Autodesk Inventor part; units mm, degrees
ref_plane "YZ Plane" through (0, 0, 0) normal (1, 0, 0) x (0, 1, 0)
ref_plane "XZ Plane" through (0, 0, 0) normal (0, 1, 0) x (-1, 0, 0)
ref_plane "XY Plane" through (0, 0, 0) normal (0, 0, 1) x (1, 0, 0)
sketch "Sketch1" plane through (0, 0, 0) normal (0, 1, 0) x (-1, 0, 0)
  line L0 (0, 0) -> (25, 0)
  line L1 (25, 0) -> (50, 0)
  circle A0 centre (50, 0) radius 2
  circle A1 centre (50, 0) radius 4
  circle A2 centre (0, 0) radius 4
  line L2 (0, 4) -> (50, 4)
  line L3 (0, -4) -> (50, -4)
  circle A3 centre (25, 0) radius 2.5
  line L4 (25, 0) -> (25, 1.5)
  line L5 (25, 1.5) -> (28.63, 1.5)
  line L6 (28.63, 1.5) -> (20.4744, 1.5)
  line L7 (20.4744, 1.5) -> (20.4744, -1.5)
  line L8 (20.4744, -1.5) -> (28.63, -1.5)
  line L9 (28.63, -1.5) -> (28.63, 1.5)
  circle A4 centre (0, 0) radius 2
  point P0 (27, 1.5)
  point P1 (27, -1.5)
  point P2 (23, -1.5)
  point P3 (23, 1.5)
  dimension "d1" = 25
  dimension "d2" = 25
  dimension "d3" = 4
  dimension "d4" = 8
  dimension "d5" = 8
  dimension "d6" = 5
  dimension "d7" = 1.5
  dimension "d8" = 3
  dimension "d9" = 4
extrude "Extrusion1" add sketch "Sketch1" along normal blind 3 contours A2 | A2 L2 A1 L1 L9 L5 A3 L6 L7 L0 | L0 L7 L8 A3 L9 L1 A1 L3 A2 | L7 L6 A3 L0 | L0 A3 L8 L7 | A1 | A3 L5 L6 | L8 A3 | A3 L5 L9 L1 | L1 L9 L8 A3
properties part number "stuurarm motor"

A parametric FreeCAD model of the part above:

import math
import FreeCAD as App
import Part
import Sketcher
from FreeCAD import Vector
Q = App.Units.Quantity

doc = App.newDocument("Part")
body = doc.addObject("PartDesign::Body", "Body")

# Sketch on XZ plane
sketch1 = doc.addObject("Sketcher::SketchObject", "Sketch")
body.addObject(sketch1)
sketch1.AttachmentSupport = (doc.XZ_Plane, [""])
sketch1.MapMode = "FlatFace"
sketch1.addGeometry([
    Part.ArcOfCircle(Part.Circle(Vector(0, 0, 0), Vector(0, 0, 1), 4), math.radians(-90), math.radians(90)),  # 0
    Part.LineSegment(Vector(0, -4, 0), Vector(-50, -4, 0)),  # 1
    Part.ArcOfCircle(Part.Circle(Vector(-50, 0, 0), Vector(0, 0, 1), 4), math.radians(90), math.radians(270)),  # 2
    Part.LineSegment(Vector(-50, 4, 0), Vector(0, 4, 0)),  # 3
    Part.Circle(Vector(0, 0, 0), Vector(0, 0, 1), 2),  # 4
    Part.ArcOfCircle(Part.Circle(Vector(-25, 0, 0), Vector(0, 0, 1), 2.5), math.radians(-37), math.radians(37)),  # 5
    Part.LineSegment(Vector(-23, 1.5, 0), Vector(-27, 1.5, 0)),  # 6
    Part.ArcOfCircle(Part.Circle(Vector(-25, 0, 0), Vector(0, 0, 1), 2.5), math.radians(143), math.radians(217)),  # 7
    Part.LineSegment(Vector(-27, -1.5, 0), Vector(-23, -1.5, 0)),  # 8
    Part.Circle(Vector(-50, 0, 0), Vector(0, 0, 1), 2),  # 9
], False)
sketch1.addConstraint([
    Sketcher.Constraint("Tangent", 0, 1, 1, 1),
    Sketcher.Constraint("Tangent", 1, 2, 2, 2),
    Sketcher.Constraint("Tangent", 2, 1, 3, 1),
    Sketcher.Constraint("Tangent", 3, 2, 0, 2),
    Sketcher.Constraint("Coincident", 5, 2, 6, 1),
    Sketcher.Constraint("Coincident", 6, 2, 7, 1),
    Sketcher.Constraint("Coincident", 7, 2, 8, 1),
    Sketcher.Constraint("Coincident", 8, 2, 5, 1),
    Sketcher.Constraint("Horizontal", 1),
    Sketcher.Constraint("Horizontal", 3),
    Sketcher.Constraint("Horizontal", 6),
    Sketcher.Constraint("Horizontal", 8),
    Sketcher.Constraint("Coincident", 0, 3, -1, 1),
    Sketcher.Constraint("Coincident", 4, 3, -1, 1),
    Sketcher.Constraint("Coincident", 7, 3, 5, 3),
    Sketcher.Constraint("Coincident", 9, 3, 2, 3),
    Sketcher.Constraint("Equal", 5, 7),
    Sketcher.Constraint("Equal", 4, 9),
    Sketcher.Constraint("Symmetric", 6, 2, 7, 2, -1),
    Sketcher.Constraint("Diameter", 4, Q("4 mm")),
    Sketcher.Constraint("Radius", 0, Q("4 mm")),
    Sketcher.Constraint("Radius", 5, Q("2.5 mm")),
    Sketcher.Constraint("DistanceX", 6, 2, 6, 1, Q("4 mm")),
    Sketcher.Constraint("DistanceX", 5, 3, -1, 1, Q("25 mm")),
    Sketcher.Constraint("DistanceX", 2, 3, 5, 3, Q("25 mm")),
])
pad1 = doc.addObject("PartDesign::Pad", "Pad")
body.addObject(pad1)
pad1.Profile = sketch1
pad1.Length = 3
pad1.Reversed = True

doc.recompute()
